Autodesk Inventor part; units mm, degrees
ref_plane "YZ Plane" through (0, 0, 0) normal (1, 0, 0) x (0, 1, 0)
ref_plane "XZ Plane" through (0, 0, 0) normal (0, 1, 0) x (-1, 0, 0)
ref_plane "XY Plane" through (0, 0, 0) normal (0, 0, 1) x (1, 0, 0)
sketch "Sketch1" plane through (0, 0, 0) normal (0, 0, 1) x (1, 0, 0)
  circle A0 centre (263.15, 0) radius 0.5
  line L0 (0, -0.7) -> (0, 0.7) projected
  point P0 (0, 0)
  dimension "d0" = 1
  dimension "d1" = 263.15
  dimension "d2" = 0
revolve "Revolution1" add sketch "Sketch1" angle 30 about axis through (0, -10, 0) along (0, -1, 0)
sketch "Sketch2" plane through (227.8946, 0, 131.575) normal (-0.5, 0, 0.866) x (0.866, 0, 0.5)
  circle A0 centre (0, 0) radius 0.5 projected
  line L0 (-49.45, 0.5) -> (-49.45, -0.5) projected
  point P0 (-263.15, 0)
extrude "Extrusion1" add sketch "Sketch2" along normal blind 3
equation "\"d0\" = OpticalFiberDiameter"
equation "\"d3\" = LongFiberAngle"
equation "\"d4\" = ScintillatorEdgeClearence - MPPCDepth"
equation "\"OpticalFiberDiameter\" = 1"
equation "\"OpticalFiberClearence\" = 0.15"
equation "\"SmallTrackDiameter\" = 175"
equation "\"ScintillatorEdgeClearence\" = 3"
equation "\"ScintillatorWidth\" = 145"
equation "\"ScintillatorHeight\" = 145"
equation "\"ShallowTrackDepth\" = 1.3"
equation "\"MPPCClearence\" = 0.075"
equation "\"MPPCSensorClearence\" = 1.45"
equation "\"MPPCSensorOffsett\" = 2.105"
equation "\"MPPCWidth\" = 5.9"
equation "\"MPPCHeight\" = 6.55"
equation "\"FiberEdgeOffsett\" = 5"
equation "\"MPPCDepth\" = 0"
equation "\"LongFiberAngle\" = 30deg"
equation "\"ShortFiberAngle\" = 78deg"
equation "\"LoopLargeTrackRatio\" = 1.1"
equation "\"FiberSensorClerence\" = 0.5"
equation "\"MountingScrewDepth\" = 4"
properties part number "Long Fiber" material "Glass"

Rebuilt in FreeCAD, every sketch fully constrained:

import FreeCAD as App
import Part
import Sketcher

V = App.Vector
Q = App.Units.Quantity

doc = App.newDocument("Part")
params = doc.addObject("Spreadsheet::Sheet", "Params")
for row, (alias, value) in enumerate([
    ("sketch1_diameter", "1 mm"),
    ("revolution_angle", "30 deg"),
    ("sketch2_diameter", "1 mm"),
    ("pad1_length", "3 mm"),
], start=1):
    params.set(f"A{row}", alias)
    params.set(f"B{row}", "=" + value)
    params.setAlias(f"B{row}", alias)

body = doc.addObject("PartDesign::Body", "Body")

sketch1 = doc.addObject("Sketcher::SketchObject", "Sketch")
body.addObject(sketch1)
sketch1.AttachmentSupport = (doc.XY_Plane, [""])
sketch1.MapMode = "FlatFace"
sketch1.addGeometry(Part.Circle(V(263.1, 0, 0), V(0, 0, 1), 0.5), False)
sketch1.addConstraint([
    Sketcher.Constraint("PointOnObject", 0, 3, -1),
    Sketcher.Constraint("Diameter", 0, Q("1 mm")),
    Sketcher.Constraint("DistanceX", -1, 1, 0, 3, Q("263.15 mm")),
])
sketch1.setExpression("Constraints[1]", "Params.sketch1_diameter")
revolution = doc.addObject("PartDesign::Revolution", "Revolution")
body.addObject(revolution)
revolution.Profile = sketch1
revolution.ReferenceAxis = (sketch1, ["V_Axis"])
revolution.setExpression("Angle", "Params.revolution_angle")
revolution.Reversed = True

sketch2 = doc.addObject("Sketcher::SketchObject", "Sketch001")
body.addObject(sketch2)
sketch2.Placement = App.Placement(V(227.8946, 0, 131.575), App.Rotation(V(0.866025404, 0, 0.5), V(0, 1, 0), V(-0.5, 0, 0.866025404), "ZXY"))
sketch2.addGeometry(Part.Circle(V(0, 0, 0), V(0, 0, 1), 0.5), False)
sketch2.addConstraint([
    Sketcher.Constraint("Coincident", 0, 3, -1, 1),
    Sketcher.Constraint("Diameter", 0, Q("1 mm")),
])
sketch2.setExpression("Constraints[1]", "Params.sketch2_diameter")
pad1 = doc.addObject("PartDesign::Pad", "Pad")
body.addObject(pad1)
pad1.Profile = sketch2
pad1.setExpression("Length", "Params.pad1_length")

doc.recompute()
